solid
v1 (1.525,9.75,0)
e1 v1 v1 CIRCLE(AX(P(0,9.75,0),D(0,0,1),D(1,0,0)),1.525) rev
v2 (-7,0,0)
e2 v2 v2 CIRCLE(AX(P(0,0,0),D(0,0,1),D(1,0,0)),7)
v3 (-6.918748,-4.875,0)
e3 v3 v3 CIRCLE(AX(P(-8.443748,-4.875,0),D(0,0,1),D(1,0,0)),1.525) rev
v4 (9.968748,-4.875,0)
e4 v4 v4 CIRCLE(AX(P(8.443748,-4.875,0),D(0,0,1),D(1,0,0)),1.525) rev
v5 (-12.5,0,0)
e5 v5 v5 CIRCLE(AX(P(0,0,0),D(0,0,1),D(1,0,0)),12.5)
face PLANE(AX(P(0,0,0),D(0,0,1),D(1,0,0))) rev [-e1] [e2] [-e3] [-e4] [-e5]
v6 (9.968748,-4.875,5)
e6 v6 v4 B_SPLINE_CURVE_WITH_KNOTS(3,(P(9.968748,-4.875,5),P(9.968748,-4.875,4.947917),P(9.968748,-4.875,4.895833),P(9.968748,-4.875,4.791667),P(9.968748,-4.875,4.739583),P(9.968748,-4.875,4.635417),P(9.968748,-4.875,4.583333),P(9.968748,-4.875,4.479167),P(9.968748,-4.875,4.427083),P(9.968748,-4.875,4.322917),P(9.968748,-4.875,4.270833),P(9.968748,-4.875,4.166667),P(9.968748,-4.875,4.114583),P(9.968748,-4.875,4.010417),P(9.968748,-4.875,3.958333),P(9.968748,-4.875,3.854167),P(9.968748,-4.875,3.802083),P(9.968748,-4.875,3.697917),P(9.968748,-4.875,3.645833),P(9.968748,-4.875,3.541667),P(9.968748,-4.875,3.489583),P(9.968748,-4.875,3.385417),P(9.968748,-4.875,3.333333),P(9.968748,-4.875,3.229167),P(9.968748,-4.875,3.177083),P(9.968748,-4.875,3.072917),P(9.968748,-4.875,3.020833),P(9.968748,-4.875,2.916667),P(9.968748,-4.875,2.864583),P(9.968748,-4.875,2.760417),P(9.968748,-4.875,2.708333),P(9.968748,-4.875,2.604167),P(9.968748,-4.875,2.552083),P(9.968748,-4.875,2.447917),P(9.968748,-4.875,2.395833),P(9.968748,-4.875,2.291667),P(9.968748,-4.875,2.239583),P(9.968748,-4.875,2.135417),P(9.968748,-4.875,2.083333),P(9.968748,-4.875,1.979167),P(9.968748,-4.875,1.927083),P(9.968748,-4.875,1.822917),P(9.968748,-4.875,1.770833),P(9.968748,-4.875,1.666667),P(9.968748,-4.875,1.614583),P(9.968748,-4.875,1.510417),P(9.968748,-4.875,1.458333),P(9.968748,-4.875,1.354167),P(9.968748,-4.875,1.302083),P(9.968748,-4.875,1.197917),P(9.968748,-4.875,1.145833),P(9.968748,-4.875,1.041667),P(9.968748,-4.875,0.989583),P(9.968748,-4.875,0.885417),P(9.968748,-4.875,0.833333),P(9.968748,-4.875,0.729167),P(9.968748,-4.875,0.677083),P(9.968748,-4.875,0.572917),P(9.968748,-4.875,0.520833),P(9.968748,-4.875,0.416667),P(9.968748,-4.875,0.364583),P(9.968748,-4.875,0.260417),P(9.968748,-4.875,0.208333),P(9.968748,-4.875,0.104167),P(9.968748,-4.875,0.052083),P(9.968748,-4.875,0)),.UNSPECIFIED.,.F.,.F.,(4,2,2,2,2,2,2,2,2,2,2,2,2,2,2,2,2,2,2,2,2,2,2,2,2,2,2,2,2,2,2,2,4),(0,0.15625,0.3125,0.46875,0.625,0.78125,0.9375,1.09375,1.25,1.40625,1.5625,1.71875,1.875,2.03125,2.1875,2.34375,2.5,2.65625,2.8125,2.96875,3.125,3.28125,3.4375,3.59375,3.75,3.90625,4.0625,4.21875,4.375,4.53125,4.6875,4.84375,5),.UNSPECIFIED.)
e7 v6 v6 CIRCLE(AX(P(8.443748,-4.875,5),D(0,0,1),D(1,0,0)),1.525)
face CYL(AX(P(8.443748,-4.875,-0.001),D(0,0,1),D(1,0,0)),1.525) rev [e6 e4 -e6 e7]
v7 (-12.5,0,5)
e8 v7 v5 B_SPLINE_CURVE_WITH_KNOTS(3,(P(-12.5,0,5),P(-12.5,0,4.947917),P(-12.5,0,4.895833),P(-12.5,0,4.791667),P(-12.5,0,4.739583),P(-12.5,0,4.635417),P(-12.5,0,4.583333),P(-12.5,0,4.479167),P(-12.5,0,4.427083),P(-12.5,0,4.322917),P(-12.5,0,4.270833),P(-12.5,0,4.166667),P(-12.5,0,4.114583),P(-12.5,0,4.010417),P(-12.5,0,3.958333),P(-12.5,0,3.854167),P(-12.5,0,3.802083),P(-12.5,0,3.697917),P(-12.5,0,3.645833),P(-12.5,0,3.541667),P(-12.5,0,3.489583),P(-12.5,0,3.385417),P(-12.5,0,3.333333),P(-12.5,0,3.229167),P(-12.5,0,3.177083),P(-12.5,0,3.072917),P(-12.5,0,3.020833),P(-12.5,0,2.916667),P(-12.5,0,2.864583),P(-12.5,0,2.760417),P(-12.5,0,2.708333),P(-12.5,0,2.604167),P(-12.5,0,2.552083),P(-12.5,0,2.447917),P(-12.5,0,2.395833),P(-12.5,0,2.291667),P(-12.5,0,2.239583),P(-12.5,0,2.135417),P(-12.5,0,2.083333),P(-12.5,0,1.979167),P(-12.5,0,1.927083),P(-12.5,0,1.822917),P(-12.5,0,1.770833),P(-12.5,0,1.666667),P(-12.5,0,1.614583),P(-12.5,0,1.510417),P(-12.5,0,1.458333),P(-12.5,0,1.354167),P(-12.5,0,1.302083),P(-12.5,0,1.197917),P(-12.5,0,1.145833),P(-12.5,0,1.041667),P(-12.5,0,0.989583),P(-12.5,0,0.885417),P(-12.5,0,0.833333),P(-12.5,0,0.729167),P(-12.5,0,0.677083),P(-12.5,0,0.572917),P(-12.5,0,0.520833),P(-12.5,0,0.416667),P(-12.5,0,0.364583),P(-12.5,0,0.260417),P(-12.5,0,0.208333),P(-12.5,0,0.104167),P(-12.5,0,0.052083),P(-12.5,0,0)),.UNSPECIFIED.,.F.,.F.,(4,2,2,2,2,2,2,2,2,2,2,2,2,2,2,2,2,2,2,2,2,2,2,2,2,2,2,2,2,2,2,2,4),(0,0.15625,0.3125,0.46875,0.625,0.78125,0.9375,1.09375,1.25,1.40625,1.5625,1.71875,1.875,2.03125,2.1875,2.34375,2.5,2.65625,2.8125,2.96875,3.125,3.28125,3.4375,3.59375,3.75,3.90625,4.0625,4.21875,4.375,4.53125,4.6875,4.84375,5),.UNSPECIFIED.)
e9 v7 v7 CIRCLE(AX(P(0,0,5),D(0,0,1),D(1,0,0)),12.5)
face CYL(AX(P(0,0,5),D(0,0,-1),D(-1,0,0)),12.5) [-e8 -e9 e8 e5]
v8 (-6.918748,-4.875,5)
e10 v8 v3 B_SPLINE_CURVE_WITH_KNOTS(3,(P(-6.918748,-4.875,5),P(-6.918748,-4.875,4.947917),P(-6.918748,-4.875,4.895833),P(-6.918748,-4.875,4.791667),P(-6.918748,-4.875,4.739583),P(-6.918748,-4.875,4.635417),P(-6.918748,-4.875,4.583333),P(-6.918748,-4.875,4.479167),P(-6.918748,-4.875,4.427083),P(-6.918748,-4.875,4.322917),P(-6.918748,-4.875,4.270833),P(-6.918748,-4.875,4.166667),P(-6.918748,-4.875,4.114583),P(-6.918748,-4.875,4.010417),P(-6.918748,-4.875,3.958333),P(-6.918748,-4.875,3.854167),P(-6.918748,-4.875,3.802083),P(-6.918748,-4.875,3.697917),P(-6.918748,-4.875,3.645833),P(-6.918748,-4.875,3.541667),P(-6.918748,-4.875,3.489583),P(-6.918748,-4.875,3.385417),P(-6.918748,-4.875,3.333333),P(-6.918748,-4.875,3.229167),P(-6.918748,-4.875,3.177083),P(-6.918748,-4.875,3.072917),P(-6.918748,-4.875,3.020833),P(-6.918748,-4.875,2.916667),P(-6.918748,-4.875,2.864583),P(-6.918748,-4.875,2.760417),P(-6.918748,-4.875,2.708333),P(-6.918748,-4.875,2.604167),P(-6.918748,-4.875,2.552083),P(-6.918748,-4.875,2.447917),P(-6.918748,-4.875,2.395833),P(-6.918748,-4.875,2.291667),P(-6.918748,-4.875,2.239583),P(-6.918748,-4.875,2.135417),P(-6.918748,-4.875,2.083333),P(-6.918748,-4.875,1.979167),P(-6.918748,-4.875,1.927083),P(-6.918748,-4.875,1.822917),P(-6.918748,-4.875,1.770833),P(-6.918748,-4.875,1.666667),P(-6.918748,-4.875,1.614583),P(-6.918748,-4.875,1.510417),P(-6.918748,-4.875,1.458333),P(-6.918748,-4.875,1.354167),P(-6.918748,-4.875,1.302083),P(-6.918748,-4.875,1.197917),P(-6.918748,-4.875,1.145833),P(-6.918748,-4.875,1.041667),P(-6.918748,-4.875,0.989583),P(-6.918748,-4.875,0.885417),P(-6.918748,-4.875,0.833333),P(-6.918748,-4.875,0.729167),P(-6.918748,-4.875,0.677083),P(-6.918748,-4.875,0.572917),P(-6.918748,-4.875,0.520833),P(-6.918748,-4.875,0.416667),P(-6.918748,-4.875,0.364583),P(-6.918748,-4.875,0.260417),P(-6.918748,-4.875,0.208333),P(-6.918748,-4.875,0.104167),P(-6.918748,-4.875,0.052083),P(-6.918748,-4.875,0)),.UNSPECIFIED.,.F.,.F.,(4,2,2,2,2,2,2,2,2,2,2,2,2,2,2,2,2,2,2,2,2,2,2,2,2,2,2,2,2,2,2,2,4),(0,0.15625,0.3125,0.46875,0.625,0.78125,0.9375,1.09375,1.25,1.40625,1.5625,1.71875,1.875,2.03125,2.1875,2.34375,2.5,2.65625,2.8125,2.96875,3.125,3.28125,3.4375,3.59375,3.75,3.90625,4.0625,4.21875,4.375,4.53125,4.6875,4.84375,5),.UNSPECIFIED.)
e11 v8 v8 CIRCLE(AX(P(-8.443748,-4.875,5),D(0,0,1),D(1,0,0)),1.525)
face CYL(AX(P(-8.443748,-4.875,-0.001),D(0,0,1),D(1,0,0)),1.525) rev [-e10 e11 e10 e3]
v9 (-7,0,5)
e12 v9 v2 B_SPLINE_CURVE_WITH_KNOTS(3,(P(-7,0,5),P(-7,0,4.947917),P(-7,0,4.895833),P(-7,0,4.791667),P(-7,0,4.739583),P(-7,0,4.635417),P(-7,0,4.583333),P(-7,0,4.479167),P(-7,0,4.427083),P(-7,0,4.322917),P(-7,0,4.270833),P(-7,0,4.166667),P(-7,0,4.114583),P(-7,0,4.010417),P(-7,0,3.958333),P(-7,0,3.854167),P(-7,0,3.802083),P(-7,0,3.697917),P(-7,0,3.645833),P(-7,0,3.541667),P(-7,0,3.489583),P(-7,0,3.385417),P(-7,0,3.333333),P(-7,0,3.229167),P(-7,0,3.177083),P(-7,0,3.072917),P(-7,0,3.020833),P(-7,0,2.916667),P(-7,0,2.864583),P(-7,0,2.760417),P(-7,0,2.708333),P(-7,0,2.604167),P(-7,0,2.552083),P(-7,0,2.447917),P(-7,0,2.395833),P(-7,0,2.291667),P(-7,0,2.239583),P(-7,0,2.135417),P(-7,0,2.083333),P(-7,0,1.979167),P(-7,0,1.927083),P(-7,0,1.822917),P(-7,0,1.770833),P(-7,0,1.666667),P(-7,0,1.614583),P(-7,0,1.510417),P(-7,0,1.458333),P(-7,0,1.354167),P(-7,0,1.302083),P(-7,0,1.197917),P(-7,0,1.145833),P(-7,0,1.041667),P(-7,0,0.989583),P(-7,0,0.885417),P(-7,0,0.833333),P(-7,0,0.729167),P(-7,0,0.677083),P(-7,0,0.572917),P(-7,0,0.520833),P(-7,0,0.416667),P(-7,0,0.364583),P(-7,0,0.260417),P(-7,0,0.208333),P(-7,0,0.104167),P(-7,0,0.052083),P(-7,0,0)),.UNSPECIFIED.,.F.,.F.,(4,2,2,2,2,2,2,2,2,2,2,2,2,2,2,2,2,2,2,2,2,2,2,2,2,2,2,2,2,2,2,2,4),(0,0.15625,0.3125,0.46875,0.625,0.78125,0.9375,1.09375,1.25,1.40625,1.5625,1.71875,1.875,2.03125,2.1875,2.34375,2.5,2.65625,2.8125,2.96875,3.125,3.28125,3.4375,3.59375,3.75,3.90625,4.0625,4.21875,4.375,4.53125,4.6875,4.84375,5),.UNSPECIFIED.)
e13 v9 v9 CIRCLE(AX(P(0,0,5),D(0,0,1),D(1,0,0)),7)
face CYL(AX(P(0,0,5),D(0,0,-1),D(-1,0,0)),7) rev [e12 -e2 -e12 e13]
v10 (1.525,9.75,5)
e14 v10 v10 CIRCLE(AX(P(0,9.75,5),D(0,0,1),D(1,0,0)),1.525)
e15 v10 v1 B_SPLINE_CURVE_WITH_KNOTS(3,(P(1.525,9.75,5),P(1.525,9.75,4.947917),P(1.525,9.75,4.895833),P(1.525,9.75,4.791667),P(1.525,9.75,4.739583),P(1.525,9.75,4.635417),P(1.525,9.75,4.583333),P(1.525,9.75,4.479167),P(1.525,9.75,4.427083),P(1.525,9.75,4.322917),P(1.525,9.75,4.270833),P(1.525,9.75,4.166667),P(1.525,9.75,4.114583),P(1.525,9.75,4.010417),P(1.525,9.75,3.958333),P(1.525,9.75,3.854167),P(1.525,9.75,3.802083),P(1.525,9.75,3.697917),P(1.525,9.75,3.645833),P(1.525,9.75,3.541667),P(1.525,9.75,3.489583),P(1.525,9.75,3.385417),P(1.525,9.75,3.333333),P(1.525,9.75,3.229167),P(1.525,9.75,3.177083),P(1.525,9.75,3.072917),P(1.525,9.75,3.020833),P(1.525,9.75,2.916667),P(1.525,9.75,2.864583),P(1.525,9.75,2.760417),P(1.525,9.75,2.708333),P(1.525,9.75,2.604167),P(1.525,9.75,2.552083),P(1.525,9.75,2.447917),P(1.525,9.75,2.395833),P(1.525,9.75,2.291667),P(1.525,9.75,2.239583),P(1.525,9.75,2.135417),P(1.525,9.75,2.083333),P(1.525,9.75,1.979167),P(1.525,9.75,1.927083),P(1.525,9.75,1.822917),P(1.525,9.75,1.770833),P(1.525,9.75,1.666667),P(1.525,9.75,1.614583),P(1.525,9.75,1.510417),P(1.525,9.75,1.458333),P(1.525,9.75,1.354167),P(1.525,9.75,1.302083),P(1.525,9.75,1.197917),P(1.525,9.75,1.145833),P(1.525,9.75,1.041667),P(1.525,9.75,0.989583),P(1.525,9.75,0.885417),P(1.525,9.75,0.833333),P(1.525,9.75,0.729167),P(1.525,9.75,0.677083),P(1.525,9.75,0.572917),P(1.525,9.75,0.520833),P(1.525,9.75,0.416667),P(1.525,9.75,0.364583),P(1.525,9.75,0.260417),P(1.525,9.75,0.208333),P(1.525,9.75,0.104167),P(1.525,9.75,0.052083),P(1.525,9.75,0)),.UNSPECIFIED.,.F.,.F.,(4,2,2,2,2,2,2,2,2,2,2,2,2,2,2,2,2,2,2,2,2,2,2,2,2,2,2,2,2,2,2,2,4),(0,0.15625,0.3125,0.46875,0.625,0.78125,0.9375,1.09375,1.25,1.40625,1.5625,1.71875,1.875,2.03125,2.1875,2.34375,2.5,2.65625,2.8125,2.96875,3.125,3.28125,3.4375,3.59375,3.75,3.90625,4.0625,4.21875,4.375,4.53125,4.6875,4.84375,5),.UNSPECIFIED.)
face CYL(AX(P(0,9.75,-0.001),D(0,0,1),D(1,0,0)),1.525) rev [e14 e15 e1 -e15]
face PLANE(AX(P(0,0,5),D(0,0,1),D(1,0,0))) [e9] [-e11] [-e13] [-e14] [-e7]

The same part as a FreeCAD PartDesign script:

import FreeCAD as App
import Part
import Sketcher
Q = App.Units.Quantity

doc = App.newDocument("Part")
body = doc.addObject("PartDesign::Body", "Body")

# Sketch on XY plane
sketch1 = doc.addObject("Sketcher::SketchObject", "Sketch")
body.addObject(sketch1)
sketch1.AttachmentSupport = (doc.XY_Plane, [""])
sketch1.MapMode = "FlatFace"
sketch1.addGeometry([
    Part.Circle(App.Vector(0, 0, 0), App.Vector(0, 0, 1), 12),
    Part.Circle(App.Vector(0, 0, 0), App.Vector(0, 0, 1), 7),
], False)
sketch1.addConstraint([
    Sketcher.Constraint("Coincident", 0, 3, -1, 1),
    Sketcher.Constraint("Coincident", 1, 3, -1, 1),
    Sketcher.Constraint("Diameter", 0, Q("25 mm")),
    Sketcher.Constraint("Diameter", 1, Q("14 mm")),
])
pad1 = doc.addObject("PartDesign::Pad", "Pad")
body.addObject(pad1)
pad1.Profile = sketch1
pad1.Length = 5

# Sketch on XY plane
sketch2 = doc.addObject("Sketcher::SketchObject", "Sketch001")
body.addObject(sketch2)
sketch2.AttachmentSupport = (doc.XY_Plane, [""])
sketch2.MapMode = "FlatFace"
sketch2.AttachmentOffset = App.Placement(App.Vector(0, 0, 5), App.Rotation())
sketch2.addGeometry(Part.Circle(App.Vector(0, 9.8, 0), App.Vector(0, 0, 1), 1.5), False)
sketch2.addConstraint([
    Sketcher.Constraint("PointOnObject", 0, 3, -2),
    Sketcher.Constraint("Diameter", 0, Q("3.05 mm")),
    Sketcher.Constraint("DistanceY", -1, 1, 0, 3, Q("9.75 mm")),
])
pocket1 = doc.addObject("PartDesign::Pocket", "Pocket")
body.addObject(pocket1)
pocket1.Profile = sketch2
pocket1.Type = "UpToFirst"

# Sketch on XY plane
sketch3 = doc.addObject("Sketcher::SketchObject", "Sketch002")
body.addObject(sketch3)
sketch3.AttachmentSupport = (doc.XY_Plane, [""])
sketch3.MapMode = "FlatFace"
sketch3.AttachmentOffset = App.Placement(App.Vector(0, 0, 5), App.Rotation())
sketch3.addGeometry(Part.Circle(App.Vector(8.4, -4.9, 0), App.Vector(0, 0, 1), 1.5), False)
sketch3.addConstraint([
    Sketcher.Constraint("Diameter", 0, Q("3.05 mm")),
    Sketcher.Constraint("DistanceY", 0, 3, -1, 1, Q("4.875 mm")),
    Sketcher.Constraint("DistanceX", -1, 1, 0, 3, Q("8.443748 mm")),
])
pocket2 = doc.addObject("PartDesign::Pocket", "Pocket001")
body.addObject(pocket2)
pocket2.Profile = sketch3
pocket2.Type = "UpToFirst"

# Sketch on XY plane
sketch4 = doc.addObject("Sketcher::SketchObject", "Sketch003")
body.addObject(sketch4)
sketch4.AttachmentSupport = (doc.XY_Plane, [""])
sketch4.MapMode = "FlatFace"
sketch4.AttachmentOffset = App.Placement(App.Vector(0, 0, 5), App.Rotation())
sketch4.addGeometry(Part.Circle(App.Vector(-8.4, -4.9, 0), App.Vector(0, 0, 1), 1.5), False)
sketch4.addConstraint([
    Sketcher.Constraint("Diameter", 0, Q("3.05 mm")),
    Sketcher.Constraint("DistanceY", 0, 3, -1, 1, Q("4.875 mm")),
    Sketcher.Constraint("DistanceX", 0, 3, -1, 1, Q("8.443748 mm")),
])
pocket3 = doc.addObject("PartDesign::Pocket", "Pocket002")
body.addObject(pocket3)
pocket3.Profile = sketch4
pocket3.Type = "UpToFirst"

doc.recompute()
